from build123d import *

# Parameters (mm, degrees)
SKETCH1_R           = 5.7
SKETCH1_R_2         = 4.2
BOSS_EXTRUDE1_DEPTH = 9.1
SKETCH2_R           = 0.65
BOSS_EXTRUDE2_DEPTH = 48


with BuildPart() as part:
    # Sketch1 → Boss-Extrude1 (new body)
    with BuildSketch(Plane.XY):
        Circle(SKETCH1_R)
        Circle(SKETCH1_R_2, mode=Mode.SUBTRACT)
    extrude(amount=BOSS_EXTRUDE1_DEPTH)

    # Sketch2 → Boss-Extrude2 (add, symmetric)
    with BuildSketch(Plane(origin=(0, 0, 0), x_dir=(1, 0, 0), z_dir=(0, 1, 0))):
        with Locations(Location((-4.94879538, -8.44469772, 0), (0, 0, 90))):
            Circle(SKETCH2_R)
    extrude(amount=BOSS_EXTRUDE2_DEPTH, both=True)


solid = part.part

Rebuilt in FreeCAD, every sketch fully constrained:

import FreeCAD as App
import Part
import Sketcher
Q = App.Units.Quantity

doc = App.newDocument("Part")
body = doc.addObject("PartDesign::Body", "Body")

# Sketch on XY plane
sketch1 = body.newObject("Sketcher::SketchObject", "Sketch")
sketch1.AttachmentSupport = (doc.getObject("XY_Plane"), [""])
sketch1.MapMode = "FlatFace"
sketch1.addGeometry([
    Part.Circle(App.Vector(0, 0, 0), App.Vector(0, 0, 1), 5.7),
    Part.Circle(App.Vector(0, 0, 0), App.Vector(0, 0, 1), 4.2),
], False)
sketch1.addConstraint([
    Sketcher.Constraint("Coincident", 0, 3, -1, 1),
    Sketcher.Constraint("Coincident", 1, 3, -1, 1),
    Sketcher.Constraint("Diameter", 0, Q("11.4 mm")),
    Sketcher.Constraint("Diameter", 1, Q("8.4 mm")),
])
pad1 = body.newObject("PartDesign::Pad", "Pad")
pad1.Profile = sketch1
pad1.Length = 9.1

# Sketch on XZ plane
sketch2 = body.newObject("Sketcher::SketchObject", "Sketch001")
sketch2.AttachmentSupport = (doc.getObject("XZ_Plane"), [""])
sketch2.MapMode = "FlatFace"
sketch2.addGeometry(Part.Circle(App.Vector(-4.9, 8.4, 0), App.Vector(0, 0, 1), 0.7), False)
sketch2.addConstraint([
    Sketcher.Constraint("Diameter", 0, Q("1.3 mm")),
    Sketcher.Constraint("DistanceX", 0, 3, -1, 1, Q("4.948795 mm")),
    Sketcher.Constraint("DistanceY", -1, 1, 0, 3, Q("8.444698 mm")),
])
pad2 = body.newObject("PartDesign::Pad", "Pad001")
pad2.Profile = sketch2
pad2.Length = 96
pad2.Midplane = True

doc.recompute()
